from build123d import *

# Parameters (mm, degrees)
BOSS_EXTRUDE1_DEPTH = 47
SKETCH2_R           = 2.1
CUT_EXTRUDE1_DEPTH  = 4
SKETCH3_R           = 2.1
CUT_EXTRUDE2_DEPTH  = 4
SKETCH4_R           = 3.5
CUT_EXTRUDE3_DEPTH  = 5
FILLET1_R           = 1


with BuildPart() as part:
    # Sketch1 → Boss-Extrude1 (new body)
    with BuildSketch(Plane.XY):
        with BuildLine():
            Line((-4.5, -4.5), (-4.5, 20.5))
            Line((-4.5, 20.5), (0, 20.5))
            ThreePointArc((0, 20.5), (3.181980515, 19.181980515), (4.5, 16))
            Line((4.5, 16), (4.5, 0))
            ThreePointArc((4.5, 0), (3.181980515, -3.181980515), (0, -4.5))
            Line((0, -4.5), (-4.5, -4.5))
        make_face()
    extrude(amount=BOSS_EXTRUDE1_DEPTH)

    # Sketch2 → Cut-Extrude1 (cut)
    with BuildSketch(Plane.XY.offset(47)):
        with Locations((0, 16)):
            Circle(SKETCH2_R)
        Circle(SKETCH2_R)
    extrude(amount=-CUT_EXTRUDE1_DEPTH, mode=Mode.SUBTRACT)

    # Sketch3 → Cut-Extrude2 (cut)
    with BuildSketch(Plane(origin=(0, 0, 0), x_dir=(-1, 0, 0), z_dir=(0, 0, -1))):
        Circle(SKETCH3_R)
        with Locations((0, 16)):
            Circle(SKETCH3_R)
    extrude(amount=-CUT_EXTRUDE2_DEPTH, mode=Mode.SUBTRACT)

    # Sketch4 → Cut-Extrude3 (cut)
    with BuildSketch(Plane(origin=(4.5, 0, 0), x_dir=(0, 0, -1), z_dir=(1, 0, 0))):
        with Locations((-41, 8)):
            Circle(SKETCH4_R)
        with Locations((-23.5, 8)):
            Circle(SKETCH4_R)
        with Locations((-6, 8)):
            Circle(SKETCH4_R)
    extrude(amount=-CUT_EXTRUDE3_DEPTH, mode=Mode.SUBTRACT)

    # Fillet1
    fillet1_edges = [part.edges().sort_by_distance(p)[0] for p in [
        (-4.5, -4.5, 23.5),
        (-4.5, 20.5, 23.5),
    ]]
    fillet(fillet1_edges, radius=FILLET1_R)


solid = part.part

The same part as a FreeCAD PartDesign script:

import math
import FreeCAD as App
import Part
import Sketcher


def edges_at(feature, points):
    """Names of the edges that pass closest to the given points."""
    edges = feature.Shape.Edges
    near = lambda p: min(range(len(edges)), key=lambda i: edges[i].distToShape(Part.Vertex(*p))[0])
    return sorted({f"Edge{near(p) + 1}" for p in points})

doc = App.newDocument("Part")
params = doc.addObject("Spreadsheet::Sheet", "Params")
for row, (alias, value) in enumerate([
    ("sketch1_radius", "4.5 mm"),
    ("sketch1_height", "25 mm"),
    ("sketch1_width", "4.5 mm"),
    ("pad1_length", "47 mm"),
    ("sketch2_diameter", "4.2 mm"),
    ("pocket1_length", "4 mm"),
    ("sketch3_diameter", "4.2 mm"),
    ("pocket2_length", "4 mm"),
    ("sketch4_diameter", "7 mm"),
    ("pocket3_length", "5 mm"),
    ("fillet_radius", "1 mm"),
], start=1):
    params.set(f"A{row}", alias)
    params.set(f"B{row}", "=" + value)
    params.setAlias(f"B{row}", alias)

body = doc.addObject("PartDesign::Body", "Body")

sketch1 = doc.addObject("Sketcher::SketchObject", "Sketch")
body.addObject(sketch1)
sketch1.AttachmentSupport = (doc.XY_Plane, [""])
sketch1.MapMode = "FlatFace"
sketch1.addGeometry([
    Part.LineSegment(App.Vector(-4.5, 20.5, 0), App.Vector(-4.5, -4.5, 0)),
    Part.LineSegment(App.Vector(-4.5, -4.5, 0), App.Vector(0, -4.5, 0)),
    Part.ArcOfCircle(Part.Circle(App.Vector(0, 0, 0), App.Vector(0, 0, 1), 4.5), math.radians(-90), math.radians(0)),
    Part.LineSegment(App.Vector(4.5, 0, 0), App.Vector(4.5, 16, 0)),
    Part.ArcOfCircle(Part.Circle(App.Vector(0, 16, 0), App.Vector(0, 0, 1), 4.5), math.radians(0), math.radians(90)),
    Part.LineSegment(App.Vector(0, 20.5, 0), App.Vector(-4.5, 20.5, 0)),
], False)
sketch1.addConstraint([
    Sketcher.Constraint("Coincident", 0, 2, 1, 1),
    Sketcher.Constraint("Tangent", 1, 2, 2, 1),
    Sketcher.Constraint("Tangent", 2, 2, 3, 1),
    Sketcher.Constraint("Tangent", 3, 2, 4, 1),
    Sketcher.Constraint("Tangent", 4, 2, 5, 1),
    Sketcher.Constraint("Coincident", 5, 2, 0, 1),
    Sketcher.Constraint("Vertical", 0),
    Sketcher.Constraint("Horizontal", 1),
    Sketcher.Constraint("Vertical", 3),
    Sketcher.Constraint("Horizontal", 5),
    Sketcher.Constraint("Coincident", 2, 3, -1, 1),
    Sketcher.Constraint("Equal", 2, 4),
    Sketcher.Constraint("Radius", 2, 4.5),
    Sketcher.Constraint("DistanceY", 0, 2, 0, 1, 25.0),
    Sketcher.Constraint("DistanceX", 1, 1, 1, 2, 4.5),
])
sketch1.setExpression("Constraints[12]", "Params.sketch1_radius")
sketch1.setExpression("Constraints[13]", "Params.sketch1_height")
sketch1.setExpression("Constraints[14]", "Params.sketch1_width")
pad1 = doc.addObject("PartDesign::Pad", "Pad")
body.addObject(pad1)
pad1.Profile = sketch1
pad1.setExpression("Length", "Params.pad1_length")

sketch2 = doc.addObject("Sketcher::SketchObject", "Sketch001")
body.addObject(sketch2)
sketch2.AttachmentSupport = (doc.XY_Plane, [""])
sketch2.MapMode = "FlatFace"
sketch2.AttachmentOffset = App.Placement(App.Vector(0, 0, 47), App.Rotation())
sketch2.addGeometry([
    Part.Circle(App.Vector(0, 16, 0), App.Vector(0, 0, 1), 2.1),
    Part.Circle(App.Vector(0, 0, 0), App.Vector(0, 0, 1), 2.1),
], False)
sketch2.addConstraint([
    Sketcher.Constraint("Coincident", 1, 3, -1, 1),
    Sketcher.Constraint("Equal", 0, 1),
    Sketcher.Constraint("PointOnObject", 0, 3, -2),
    Sketcher.Constraint("Diameter", 0, 4.2),
    Sketcher.Constraint("DistanceY", -1, 1, 0, 3, 16.0),
])
sketch2.setExpression("Constraints[3]", "Params.sketch2_diameter")
pocket1 = doc.addObject("PartDesign::Pocket", "Pocket")
body.addObject(pocket1)
pocket1.Profile = sketch2
pocket1.setExpression("Length", "Params.pocket1_length")

sketch3 = doc.addObject("Sketcher::SketchObject", "Sketch002")
body.addObject(sketch3)
sketch3.AttachmentSupport = (doc.XY_Plane, [""])
sketch3.MapMode = "FlatFace"
sketch3.addGeometry([
    Part.Circle(App.Vector(0, 0, 0), App.Vector(0, 0, 1), 2.1),
    Part.Circle(App.Vector(0, 16, 0), App.Vector(0, 0, 1), 2.1),
], False)
sketch3.addConstraint([
    Sketcher.Constraint("Coincident", 0, 3, -1, 1),
    Sketcher.Constraint("Equal", 0, 1),
    Sketcher.Constraint("PointOnObject", 1, 3, -2),
    Sketcher.Constraint("Diameter", 0, 4.2),
    Sketcher.Constraint("DistanceY", -1, 1, 1, 3, 16.0),
])
sketch3.setExpression("Constraints[3]", "Params.sketch3_diameter")
pocket2 = doc.addObject("PartDesign::Pocket", "Pocket001")
body.addObject(pocket2)
pocket2.Profile = sketch3
pocket2.setExpression("Length", "Params.pocket2_length")
pocket2.Reversed = True

sketch4 = doc.addObject("Sketcher::SketchObject", "Sketch003")
body.addObject(sketch4)
sketch4.AttachmentSupport = (doc.YZ_Plane, [""])
sketch4.MapMode = "FlatFace"
sketch4.AttachmentOffset = App.Placement(App.Vector(0, 0, 4.5), App.Rotation())
sketch4.addGeometry([
    Part.Circle(App.Vector(8, 41, 0), App.Vector(0, 0, 1), 3.5),
    Part.Circle(App.Vector(8, 23.5, 0), App.Vector(0, 0, 1), 3.5),
    Part.Circle(App.Vector(8, 6, 0), App.Vector(0, 0, 1), 3.5),
], False)
sketch4.addConstraint([
    Sketcher.Constraint("Equal", 0, 1),
    Sketcher.Constraint("Equal", 1, 2),
    Sketcher.Constraint("Vertical", 0, 3, 1, 3),
    Sketcher.Constraint("Vertical", 1, 3, 2, 3),
    Sketcher.Constraint("Diameter", 0, 7.0),
    Sketcher.Constraint("DistanceX", -1, 1, 0, 3, 8.0),
    Sketcher.Constraint("DistanceY", -1, 1, 0, 3, 41.0),
    Sketcher.Constraint("DistanceY", -1, 1, 2, 3, 6.0),
    Sketcher.Constraint("DistanceY", -1, 1, 1, 3, 23.5),
])
sketch4.setExpression("Constraints[4]", "Params.sketch4_diameter")
pocket3 = doc.addObject("PartDesign::Pocket", "Pocket002")
body.addObject(pocket3)
pocket3.Profile = sketch4
pocket3.setExpression("Length", "Params.pocket3_length")
doc.recompute()

fillet = doc.addObject("PartDesign::Fillet", "Fillet")
body.addObject(fillet)
fillet.Base = (pocket3, edges_at(pocket3, [(-4.5, -4.5, 23.5), (-4.5, 20.5, 23.5)]))
fillet.setExpression("Radius", "Params.fillet_radius")

doc.recompute()
